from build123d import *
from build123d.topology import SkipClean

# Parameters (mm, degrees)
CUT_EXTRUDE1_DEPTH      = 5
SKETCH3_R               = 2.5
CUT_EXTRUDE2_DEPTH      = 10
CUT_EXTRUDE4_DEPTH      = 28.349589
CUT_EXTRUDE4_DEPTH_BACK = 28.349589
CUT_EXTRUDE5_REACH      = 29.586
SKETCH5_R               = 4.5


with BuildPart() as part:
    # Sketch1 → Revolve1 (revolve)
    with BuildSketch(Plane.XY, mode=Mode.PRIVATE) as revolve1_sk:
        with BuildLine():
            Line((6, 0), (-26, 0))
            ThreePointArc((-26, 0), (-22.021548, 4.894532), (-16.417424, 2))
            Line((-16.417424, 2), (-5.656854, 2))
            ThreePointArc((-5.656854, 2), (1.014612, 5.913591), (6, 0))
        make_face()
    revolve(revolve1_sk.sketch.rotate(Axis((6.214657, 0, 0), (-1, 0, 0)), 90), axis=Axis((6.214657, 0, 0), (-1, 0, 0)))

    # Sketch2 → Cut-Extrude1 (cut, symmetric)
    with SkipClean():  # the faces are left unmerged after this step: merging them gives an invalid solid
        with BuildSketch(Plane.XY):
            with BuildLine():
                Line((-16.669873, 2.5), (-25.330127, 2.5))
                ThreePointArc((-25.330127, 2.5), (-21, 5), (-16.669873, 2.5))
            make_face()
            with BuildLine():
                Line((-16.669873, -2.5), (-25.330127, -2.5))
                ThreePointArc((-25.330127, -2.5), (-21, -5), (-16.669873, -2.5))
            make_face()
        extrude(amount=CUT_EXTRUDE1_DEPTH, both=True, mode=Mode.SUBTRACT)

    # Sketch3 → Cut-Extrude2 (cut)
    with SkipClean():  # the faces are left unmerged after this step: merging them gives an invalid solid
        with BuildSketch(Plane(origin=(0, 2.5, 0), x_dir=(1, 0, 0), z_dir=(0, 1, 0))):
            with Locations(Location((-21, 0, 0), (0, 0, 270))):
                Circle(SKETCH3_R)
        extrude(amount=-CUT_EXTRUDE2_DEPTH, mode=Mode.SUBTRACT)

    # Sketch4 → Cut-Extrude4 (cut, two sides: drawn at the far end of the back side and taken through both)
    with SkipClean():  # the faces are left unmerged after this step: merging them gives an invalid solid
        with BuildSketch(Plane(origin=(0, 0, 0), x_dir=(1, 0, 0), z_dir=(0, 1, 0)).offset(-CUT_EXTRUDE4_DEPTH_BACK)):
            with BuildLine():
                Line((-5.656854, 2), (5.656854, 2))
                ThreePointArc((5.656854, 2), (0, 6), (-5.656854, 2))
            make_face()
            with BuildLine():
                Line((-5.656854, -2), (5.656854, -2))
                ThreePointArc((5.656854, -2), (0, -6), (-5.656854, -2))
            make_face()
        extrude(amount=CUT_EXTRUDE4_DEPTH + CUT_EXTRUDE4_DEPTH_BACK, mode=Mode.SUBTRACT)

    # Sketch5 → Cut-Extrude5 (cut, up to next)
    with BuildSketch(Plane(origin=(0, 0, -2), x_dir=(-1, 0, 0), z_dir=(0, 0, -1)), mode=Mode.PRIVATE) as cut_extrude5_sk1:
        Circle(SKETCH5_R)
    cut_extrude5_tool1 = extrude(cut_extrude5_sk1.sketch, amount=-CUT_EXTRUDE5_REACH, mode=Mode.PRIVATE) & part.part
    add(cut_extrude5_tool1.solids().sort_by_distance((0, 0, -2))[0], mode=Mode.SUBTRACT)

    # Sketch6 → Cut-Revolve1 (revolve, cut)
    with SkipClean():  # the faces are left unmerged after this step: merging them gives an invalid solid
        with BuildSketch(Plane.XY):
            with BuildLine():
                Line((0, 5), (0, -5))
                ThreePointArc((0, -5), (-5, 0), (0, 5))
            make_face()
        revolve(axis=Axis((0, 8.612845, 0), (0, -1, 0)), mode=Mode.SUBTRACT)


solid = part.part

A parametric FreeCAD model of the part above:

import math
import FreeCAD as App
import Part
import Sketcher
Q = App.Units.Quantity

doc = App.newDocument("Part")
body = doc.addObject("PartDesign::Body", "Body")

# Sketch on XY plane
sketch1 = doc.addObject("Sketcher::SketchObject", "Sketch")
body.addObject(sketch1)
sketch1.AttachmentSupport = (doc.XY_Plane, [""])
sketch1.MapMode = "FlatFace"
sketch1.addGeometry([
    Part.LineSegment(App.Vector(-26, 0, 0), App.Vector(6, 0, 0)),
    Part.ArcOfCircle(Part.Circle(App.Vector(0, 0, 0), App.Vector(0, 0, 1), 6), math.radians(0.000003), math.radians(160.528776)),
    Part.LineSegment(App.Vector(-5.656854, 2, 0), App.Vector(-16.417424, 2, 0)),
    Part.ArcOfCircle(Part.Circle(App.Vector(-21, 0, 0), App.Vector(0, 0, 1), 5), math.radians(23.578174), math.radians(180.000004)),
], False)
sketch1.addConstraint([
    Sketcher.Constraint("Coincident", 0, 2, 1, 1),
    Sketcher.Constraint("Coincident", 1, 2, 2, 1),
    Sketcher.Constraint("Coincident", 2, 2, 3, 1),
    Sketcher.Constraint("Coincident", 3, 2, 0, 1),
    Sketcher.Constraint("Horizontal", 0),
    Sketcher.Constraint("Horizontal", 2),
    Sketcher.Constraint("Coincident", 1, 3, -1, 1),
    Sketcher.Constraint("PointOnObject", 3, 3, -1),
    Sketcher.Constraint("PointOnObject", 0, 2, -1),
    Sketcher.Constraint("Radius", 1, Q("6 mm")),
    Sketcher.Constraint("Radius", 3, Q("5 mm")),
    Sketcher.Constraint("DistanceX", 0, 1, 0, 2, Q("32 mm")),
    Sketcher.Constraint("DistanceY", -1, 1, 1, 2, Q("2 mm")),
])
revolution = doc.addObject("PartDesign::Revolution", "Revolution")
body.addObject(revolution)
revolution.Profile = sketch1
revolution.ReferenceAxis = (sketch1, ["H_Axis"])
revolution.Angle = 360

# Sketch on XY plane
sketch2 = doc.addObject("Sketcher::SketchObject", "Sketch001")
body.addObject(sketch2)
sketch2.AttachmentSupport = (doc.XY_Plane, [""])
sketch2.MapMode = "FlatFace"
sketch2.addGeometry([
    Part.LineSegment(App.Vector(-25.330127, 2.5, 0), App.Vector(-16.669873, 2.5, 0)),
    Part.ArcOfCircle(Part.Circle(App.Vector(-21, 0, 0), App.Vector(0, 0, 1), 5), math.radians(30), math.radians(150)),
    Part.LineSegment(App.Vector(-16.669873, -2.5, 0), App.Vector(-25.330127, -2.5, 0)),
    Part.ArcOfCircle(Part.Circle(App.Vector(-21, 0, 0), App.Vector(0, 0, 1), 5), math.radians(-150), math.radians(-30)),
], False)
sketch2.addConstraint([
    Sketcher.Constraint("Coincident", 0, 1, 1, 2),
    Sketcher.Constraint("Coincident", 1, 1, 0, 2),
    Sketcher.Constraint("Coincident", 2, 1, 3, 2),
    Sketcher.Constraint("Coincident", 3, 1, 2, 2),
    Sketcher.Constraint("Horizontal", 0),
    Sketcher.Constraint("Horizontal", 2),
    Sketcher.Constraint("Coincident", 3, 3, 1, 3),
    Sketcher.Constraint("Equal", 1, 3),
    Sketcher.Constraint("Symmetric", 1, 1, 2, 1, -1),
    Sketcher.Constraint("Radius", 1, Q("5 mm")),
    Sketcher.Constraint("DistanceX", 1, 3, -1, 1, Q("21 mm")),
    Sketcher.Constraint("DistanceY", 2, 1, 1, 1, Q("5 mm")),
])
pocket1 = doc.addObject("PartDesign::Pocket", "Pocket")
body.addObject(pocket1)
pocket1.Profile = sketch2
pocket1.Length = 10
pocket1.Midplane = True

# Sketch on XZ plane
sketch3 = doc.addObject("Sketcher::SketchObject", "Sketch002")
body.addObject(sketch3)
sketch3.AttachmentSupport = (doc.XZ_Plane, [""])
sketch3.MapMode = "FlatFace"
sketch3.AttachmentOffset = App.Placement(App.Vector(0, 0, -2.5), App.Rotation())
sketch3.addGeometry(Part.Circle(App.Vector(-21, 0, 0), App.Vector(0, 0, 1), 2.5), False)
sketch3.addConstraint([
    Sketcher.Constraint("PointOnObject", 0, 3, -1),
    Sketcher.Constraint("Diameter", 0, Q("5 mm")),
    Sketcher.Constraint("DistanceX", 0, 3, -1, 1, Q("21 mm")),
])
pocket2 = doc.addObject("PartDesign::Pocket", "Pocket001")
body.addObject(pocket2)
pocket2.Profile = sketch3
pocket2.Length = 10
pocket2.Reversed = True

# Sketch on XZ plane
sketch4 = doc.addObject("Sketcher::SketchObject", "Sketch003")
body.addObject(sketch4)
sketch4.AttachmentSupport = (doc.XZ_Plane, [""])
sketch4.MapMode = "FlatFace"
sketch4.addGeometry([
    Part.LineSegment(App.Vector(-5.656854, -2, 0), App.Vector(5.656854, -2, 0)),
    Part.ArcOfCircle(Part.Circle(App.Vector(0, 0, 0), App.Vector(0, 0, 1), 6), math.radians(-160.528782), math.radians(-19.471218)),
    Part.LineSegment(App.Vector(5.656854, 2, 0), App.Vector(-5.656854, 2, 0)),
    Part.ArcOfCircle(Part.Circle(App.Vector(0, 0, 0), App.Vector(0, 0, 1), 6), math.radians(19.471218), math.radians(160.528782)),
], False)
sketch4.addConstraint([
    Sketcher.Constraint("Coincident", 0, 1, 1, 1),
    Sketcher.Constraint("Coincident", 1, 2, 0, 2),
    Sketcher.Constraint("Coincident", 2, 1, 3, 1),
    Sketcher.Constraint("Coincident", 3, 2, 2, 2),
    Sketcher.Constraint("Horizontal", 0),
    Sketcher.Constraint("Horizontal", 2),
    Sketcher.Constraint("Coincident", 1, 3, -1, 1),
    Sketcher.Constraint("Coincident", 3, 3, -1, 1),
    Sketcher.Constraint("Equal", 1, 3),
    Sketcher.Constraint("Vertical", 1, 2, 2, 1),
    Sketcher.Constraint("Radius", 1, Q("6 mm")),
    Sketcher.Constraint("DistanceY", 0, 1, -1, 1, Q("2 mm")),
])
pocket3 = doc.addObject("PartDesign::Pocket", "Pocket002")
body.addObject(pocket3)
pocket3.Profile = sketch4
pocket3.Type = "ThroughAll"
pocket3.Midplane = True

# Sketch on XY plane
sketch5 = doc.addObject("Sketcher::SketchObject", "Sketch004")
body.addObject(sketch5)
sketch5.AttachmentSupport = (doc.XY_Plane, [""])
sketch5.MapMode = "FlatFace"
sketch5.AttachmentOffset = App.Placement(App.Vector(0, 0, -2), App.Rotation())
sketch5.addGeometry(Part.Circle(App.Vector(0, 0, 0), App.Vector(0, 0, 1), 4.5), False)
sketch5.addConstraint([
    Sketcher.Constraint("Coincident", 0, 3, -1, 1),
    Sketcher.Constraint("Diameter", 0, Q("9 mm")),
])
pocket4 = doc.addObject("PartDesign::Pocket", "Pocket003")
body.addObject(pocket4)
pocket4.Profile = sketch5
pocket4.Type = "UpToFirst"
pocket4.Reversed = True

# Sketch on XY plane
sketch6 = doc.addObject("Sketcher::SketchObject", "Sketch005")
body.addObject(sketch6)
sketch6.AttachmentSupport = (doc.XY_Plane, [""])
sketch6.MapMode = "FlatFace"
sketch6.addGeometry([
    Part.LineSegment(App.Vector(0, -5, 0), App.Vector(0, 5, 0)),
    Part.ArcOfCircle(Part.Circle(App.Vector(0, 0, 0), App.Vector(0, 0, 1), 5), math.radians(90), math.radians(270)),
], False)
sketch6.addConstraint([
    Sketcher.Constraint("Coincident", 0, 1, 1, 2),
    Sketcher.Constraint("Coincident", 1, 1, 0, 2),
    Sketcher.Constraint("Vertical", 0),
    Sketcher.Constraint("Coincident", 1, 3, -1, 1),
    Sketcher.Constraint("PointOnObject", 0, 1, -2),
    Sketcher.Constraint("Radius", 1, Q("5 mm")),
])
groove = doc.addObject("PartDesign::Groove", "Groove")
body.addObject(groove)
groove.Profile = sketch6
groove.ReferenceAxis = (sketch6, ["V_Axis"])
groove.Angle = 360

doc.recompute()
